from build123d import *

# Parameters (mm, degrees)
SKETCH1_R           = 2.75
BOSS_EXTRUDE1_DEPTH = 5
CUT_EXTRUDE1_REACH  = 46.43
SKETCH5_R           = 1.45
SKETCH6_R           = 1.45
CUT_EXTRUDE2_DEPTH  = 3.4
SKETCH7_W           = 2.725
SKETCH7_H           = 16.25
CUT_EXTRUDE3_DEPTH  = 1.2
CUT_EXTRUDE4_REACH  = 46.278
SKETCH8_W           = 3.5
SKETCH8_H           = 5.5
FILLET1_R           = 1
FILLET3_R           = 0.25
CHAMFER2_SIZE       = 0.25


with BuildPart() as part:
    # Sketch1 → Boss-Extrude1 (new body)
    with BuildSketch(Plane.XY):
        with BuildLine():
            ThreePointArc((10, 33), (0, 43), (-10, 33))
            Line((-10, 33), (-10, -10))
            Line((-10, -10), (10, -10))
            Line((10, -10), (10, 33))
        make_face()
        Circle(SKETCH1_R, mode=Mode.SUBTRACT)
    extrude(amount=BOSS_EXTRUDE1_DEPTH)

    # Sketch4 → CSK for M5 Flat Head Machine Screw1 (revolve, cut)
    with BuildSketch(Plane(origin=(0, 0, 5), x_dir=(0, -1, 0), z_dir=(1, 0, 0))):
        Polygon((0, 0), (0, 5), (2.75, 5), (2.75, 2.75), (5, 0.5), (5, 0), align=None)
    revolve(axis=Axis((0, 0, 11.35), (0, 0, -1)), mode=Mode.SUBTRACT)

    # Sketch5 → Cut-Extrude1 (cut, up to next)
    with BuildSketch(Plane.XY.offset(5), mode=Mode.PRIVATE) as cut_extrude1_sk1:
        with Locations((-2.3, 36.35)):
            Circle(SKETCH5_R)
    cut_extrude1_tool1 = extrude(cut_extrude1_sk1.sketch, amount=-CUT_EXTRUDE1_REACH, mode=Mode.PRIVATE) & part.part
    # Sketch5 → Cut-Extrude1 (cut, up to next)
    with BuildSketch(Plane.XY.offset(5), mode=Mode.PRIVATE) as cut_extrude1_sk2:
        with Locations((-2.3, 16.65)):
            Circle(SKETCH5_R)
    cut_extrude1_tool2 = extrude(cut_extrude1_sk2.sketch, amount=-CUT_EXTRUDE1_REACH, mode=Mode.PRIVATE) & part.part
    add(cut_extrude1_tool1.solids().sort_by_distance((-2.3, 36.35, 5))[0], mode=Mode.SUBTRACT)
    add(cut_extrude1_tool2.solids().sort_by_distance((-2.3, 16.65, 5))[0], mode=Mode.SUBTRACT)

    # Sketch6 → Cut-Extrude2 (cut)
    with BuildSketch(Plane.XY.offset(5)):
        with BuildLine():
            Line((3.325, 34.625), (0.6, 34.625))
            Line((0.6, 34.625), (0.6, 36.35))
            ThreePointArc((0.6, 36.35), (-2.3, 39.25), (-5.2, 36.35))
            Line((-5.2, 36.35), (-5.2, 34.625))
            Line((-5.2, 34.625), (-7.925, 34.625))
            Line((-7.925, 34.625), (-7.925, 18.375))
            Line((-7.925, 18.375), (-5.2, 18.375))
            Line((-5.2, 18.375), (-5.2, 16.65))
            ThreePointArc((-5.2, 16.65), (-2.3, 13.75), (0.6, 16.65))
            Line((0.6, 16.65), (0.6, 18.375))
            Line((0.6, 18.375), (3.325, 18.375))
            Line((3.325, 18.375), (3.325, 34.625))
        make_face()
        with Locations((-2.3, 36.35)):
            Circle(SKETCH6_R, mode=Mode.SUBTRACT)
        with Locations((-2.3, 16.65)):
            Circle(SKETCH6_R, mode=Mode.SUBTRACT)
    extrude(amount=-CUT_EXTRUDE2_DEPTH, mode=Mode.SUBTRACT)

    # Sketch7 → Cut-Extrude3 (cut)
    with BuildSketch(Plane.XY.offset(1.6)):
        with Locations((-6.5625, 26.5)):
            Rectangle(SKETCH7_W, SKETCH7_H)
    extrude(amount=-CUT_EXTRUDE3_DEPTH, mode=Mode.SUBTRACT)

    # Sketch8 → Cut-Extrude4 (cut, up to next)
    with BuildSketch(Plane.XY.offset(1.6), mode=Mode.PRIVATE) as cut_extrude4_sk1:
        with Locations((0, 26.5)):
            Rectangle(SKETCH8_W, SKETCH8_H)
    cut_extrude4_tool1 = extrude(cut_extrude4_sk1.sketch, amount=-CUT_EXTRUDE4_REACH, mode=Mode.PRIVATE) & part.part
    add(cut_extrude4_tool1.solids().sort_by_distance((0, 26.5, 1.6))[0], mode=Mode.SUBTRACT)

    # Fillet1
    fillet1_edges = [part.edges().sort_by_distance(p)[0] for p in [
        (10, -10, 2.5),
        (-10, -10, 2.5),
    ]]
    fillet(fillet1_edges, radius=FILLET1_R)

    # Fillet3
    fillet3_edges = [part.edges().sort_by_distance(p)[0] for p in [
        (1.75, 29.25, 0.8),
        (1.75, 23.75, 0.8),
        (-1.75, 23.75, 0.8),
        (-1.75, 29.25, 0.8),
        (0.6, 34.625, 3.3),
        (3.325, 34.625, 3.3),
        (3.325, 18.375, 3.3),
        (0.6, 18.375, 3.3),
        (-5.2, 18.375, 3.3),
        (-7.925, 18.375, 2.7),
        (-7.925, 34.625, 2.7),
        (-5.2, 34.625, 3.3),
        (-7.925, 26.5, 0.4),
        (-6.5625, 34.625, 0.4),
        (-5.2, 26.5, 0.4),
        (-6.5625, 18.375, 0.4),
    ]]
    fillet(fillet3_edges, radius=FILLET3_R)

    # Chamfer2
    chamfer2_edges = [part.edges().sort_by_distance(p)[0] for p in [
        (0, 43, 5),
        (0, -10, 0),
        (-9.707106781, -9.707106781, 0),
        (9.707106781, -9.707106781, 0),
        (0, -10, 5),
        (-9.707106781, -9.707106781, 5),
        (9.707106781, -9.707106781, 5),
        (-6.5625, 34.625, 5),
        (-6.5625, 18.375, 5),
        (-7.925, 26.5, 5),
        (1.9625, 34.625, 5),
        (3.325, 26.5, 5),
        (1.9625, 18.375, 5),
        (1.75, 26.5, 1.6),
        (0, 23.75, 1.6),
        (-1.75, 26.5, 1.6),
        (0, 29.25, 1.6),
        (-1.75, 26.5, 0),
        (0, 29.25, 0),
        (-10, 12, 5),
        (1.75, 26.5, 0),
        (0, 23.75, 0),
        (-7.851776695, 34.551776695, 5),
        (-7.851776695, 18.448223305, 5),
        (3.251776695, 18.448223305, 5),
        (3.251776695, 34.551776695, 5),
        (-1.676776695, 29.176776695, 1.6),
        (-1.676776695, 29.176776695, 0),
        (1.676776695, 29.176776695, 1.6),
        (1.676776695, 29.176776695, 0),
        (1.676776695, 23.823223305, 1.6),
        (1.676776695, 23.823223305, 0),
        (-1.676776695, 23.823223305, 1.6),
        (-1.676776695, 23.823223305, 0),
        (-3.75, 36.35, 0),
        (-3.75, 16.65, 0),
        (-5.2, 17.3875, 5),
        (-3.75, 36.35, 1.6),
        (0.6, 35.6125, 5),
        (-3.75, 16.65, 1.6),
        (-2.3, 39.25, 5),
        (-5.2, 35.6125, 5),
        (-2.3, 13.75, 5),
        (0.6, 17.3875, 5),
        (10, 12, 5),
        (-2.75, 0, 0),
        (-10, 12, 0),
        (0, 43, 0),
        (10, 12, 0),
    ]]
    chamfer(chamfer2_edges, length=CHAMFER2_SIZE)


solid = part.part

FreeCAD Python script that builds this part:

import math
import FreeCAD as App
import Part
import Sketcher
from FreeCAD import Vector
Q = App.Units.Quantity


def edges_at(feature, points):
    """Names of the edges that pass closest to the given points."""
    edges = feature.Shape.Edges
    near = lambda p: min(range(len(edges)), key=lambda i: edges[i].distToShape(Part.Vertex(*p))[0])
    return sorted({f"Edge{near(p) + 1}" for p in points})


def add_polygon(sketch, points):
    """Adds a closed chain of lines whose ends are joined by coincident constraints."""
    first, n = sketch.GeometryCount, len(points)
    for a, b in zip(points, points[1:] + points[:1]):
        sketch.addGeometry(Part.LineSegment(App.Vector(*a, 0), App.Vector(*b, 0)), False)
    for i in range(n):
        sketch.addConstraint(Sketcher.Constraint("Coincident", first + i, 2, first + (i + 1) % n, 1))

doc = App.newDocument("Part")
body = doc.addObject("PartDesign::Body", "Body")

sketch1 = doc.addObject("Sketcher::SketchObject", "Sketch")
body.addObject(sketch1)
sketch1.AttachmentSupport = (doc.XY_Plane, [""])
sketch1.MapMode = "FlatFace"
sketch1.addGeometry([
    Part.ArcOfCircle(Part.Circle(Vector(0, 33, 0), Vector(0, 0, 1), 10), math.radians(0), math.radians(180)),
    Part.LineSegment(Vector(-10, 33, 0), Vector(-10, -10, 0)),
    Part.LineSegment(Vector(-10, -10, 0), Vector(10, -10, 0)),
    Part.LineSegment(Vector(10, -10, 0), Vector(10, 33, 0)),
    Part.Circle(Vector(0, 0, 0), Vector(0, 0, 1), 2.75),
], False)
sketch1.addConstraint([
    Sketcher.Constraint("Tangent", 0, 2, 1, 1),
    Sketcher.Constraint("Coincident", 1, 2, 2, 1),
    Sketcher.Constraint("Coincident", 2, 2, 3, 1),
    Sketcher.Constraint("Tangent", 3, 2, 0, 1),
    Sketcher.Constraint("Vertical", 1),
    Sketcher.Constraint("Horizontal", 2),
    Sketcher.Constraint("Vertical", 3),
    Sketcher.Constraint("Coincident", 4, 3, -1, 1),
    Sketcher.Constraint("PointOnObject", 0, 3, -2),
    Sketcher.Constraint("Radius", 0, 10.0),
    Sketcher.Constraint("Diameter", 4, 5.5),
    Sketcher.Constraint("DistanceY", 1, 2, 1, 1, 43.0),
    Sketcher.Constraint("DistanceY", -1, 1, 0, 3, 33.0),
])
pad1 = doc.addObject("PartDesign::Pad", "Pad")
body.addObject(pad1)
pad1.Profile = sketch1
pad1.Length = 5

sketch2 = doc.addObject("Sketcher::SketchObject", "Sketch001")
body.addObject(sketch2)
sketch2.AttachmentSupport = (doc.YZ_Plane, [""])
sketch2.MapMode = "FlatFace"
add_polygon(sketch2, [(0, 0), (0, 5), (-5, 5), (-5, 4.5), (-2.75, 2.25), (-2.75, 0)])
sketch2.addConstraint([
    Sketcher.Constraint("Vertical", 0),
    Sketcher.Constraint("Horizontal", 1),
    Sketcher.Constraint("Vertical", 2),
    Sketcher.Constraint("Vertical", 4),
    Sketcher.Constraint("Horizontal", 5),
    Sketcher.Constraint("Coincident", 5, 2, -1, 1),
    Sketcher.Constraint("Equal", 1, 0),
    Sketcher.Constraint("DistanceX", 1, 2, 1, 1, 5.0),
    Sketcher.Constraint("Angle", 3, Q("-45 deg")),
    Sketcher.Constraint("DistanceY", 2, 2, 2, 1, 0.5),
    Sketcher.Constraint("DistanceX", 5, 1, 5, 2, 2.75),
])
groove = doc.addObject("PartDesign::Groove", "Groove")
body.addObject(groove)
groove.Profile = sketch2
groove.ReferenceAxis = (sketch2, ["V_Axis"])
groove.Angle = 360

sketch3 = doc.addObject("Sketcher::SketchObject", "Sketch002")
body.addObject(sketch3)
sketch3.AttachmentSupport = (doc.XY_Plane, [""])
sketch3.MapMode = "FlatFace"
sketch3.AttachmentOffset = App.Placement(Vector(0, 0, 5), App.Rotation())
sketch3.addGeometry(Part.Circle(Vector(-2.3, 36.35, 0), Vector(0, 0, 1), 1.45), False)
sketch3.addConstraint([
    Sketcher.Constraint("Diameter", 0, 2.9),
    Sketcher.Constraint("DistanceX", 0, 3, -1, 1, 2.3),
    Sketcher.Constraint("DistanceY", -1, 1, 0, 3, 36.35),
])
pocket1 = doc.addObject("PartDesign::Pocket", "Pocket")
body.addObject(pocket1)
pocket1.Profile = sketch3
pocket1.Type = "UpToFirst"

sketch4 = doc.addObject("Sketcher::SketchObject", "Sketch003")
body.addObject(sketch4)
sketch4.AttachmentSupport = (doc.XY_Plane, [""])
sketch4.MapMode = "FlatFace"
sketch4.AttachmentOffset = App.Placement(Vector(0, 0, 5), App.Rotation())
sketch4.addGeometry(Part.Circle(Vector(-2.3, 16.65, 0), Vector(0, 0, 1), 1.45), False)
sketch4.addConstraint([
    Sketcher.Constraint("Diameter", 0, 2.9),
    Sketcher.Constraint("DistanceX", 0, 3, -1, 1, 2.3),
    Sketcher.Constraint("DistanceY", -1, 1, 0, 3, 16.65),
])
pocket2 = doc.addObject("PartDesign::Pocket", "Pocket001")
body.addObject(pocket2)
pocket2.Profile = sketch4
pocket2.Type = "UpToFirst"

sketch5 = doc.addObject("Sketcher::SketchObject", "Sketch004")
body.addObject(sketch5)
sketch5.AttachmentSupport = (doc.XY_Plane, [""])
sketch5.MapMode = "FlatFace"
sketch5.AttachmentOffset = App.Placement(Vector(0, 0, 5), App.Rotation())
sketch5.addGeometry([
    Part.LineSegment(Vector(3.325, 34.625, 0), Vector(0.6, 34.625, 0)),
    Part.LineSegment(Vector(0.6, 34.625, 0), Vector(0.6, 36.35, 0)),
    Part.ArcOfCircle(Part.Circle(Vector(-2.3, 36.35, 0), Vector(0, 0, 1), 2.9), math.radians(0), math.radians(180)),
    Part.LineSegment(Vector(-5.2, 36.35, 0), Vector(-5.2, 34.625, 0)),
    Part.LineSegment(Vector(-5.2, 34.625, 0), Vector(-7.925, 34.625, 0)),
    Part.LineSegment(Vector(-7.925, 34.625, 0), Vector(-7.925, 18.375, 0)),
    Part.LineSegment(Vector(-7.925, 18.375, 0), Vector(-5.2, 18.375, 0)),
    Part.LineSegment(Vector(-5.2, 18.375, 0), Vector(-5.2, 16.65, 0)),
    Part.ArcOfCircle(Part.Circle(Vector(-2.3, 16.65, 0), Vector(0, 0, 1), 2.9), math.radians(180), math.radians(360)),
    Part.LineSegment(Vector(0.6, 16.65, 0), Vector(0.6, 18.375, 0)),
    Part.LineSegment(Vector(0.6, 18.375, 0), Vector(3.325, 18.375, 0)),
    Part.LineSegment(Vector(3.325, 18.375, 0), Vector(3.325, 34.625, 0)),
    Part.Circle(Vector(-2.3, 16.65, 0), Vector(0, 0, 1), 1.45),
    Part.Circle(Vector(-2.3, 36.35, 0), Vector(0, 0, 1), 1.45),
], False)
sketch5.addConstraint([
    Sketcher.Constraint("Coincident", 0, 2, 1, 1),
    Sketcher.Constraint("Tangent", 1, 2, 2, 1),
    Sketcher.Constraint("Tangent", 2, 2, 3, 1),
    Sketcher.Constraint("Coincident", 3, 2, 4, 1),
    Sketcher.Constraint("Coincident", 4, 2, 5, 1),
    Sketcher.Constraint("Coincident", 5, 2, 6, 1),
    Sketcher.Constraint("Coincident", 6, 2, 7, 1),
    Sketcher.Constraint("Tangent", 7, 2, 8, 1),
    Sketcher.Constraint("Tangent", 8, 2, 9, 1),
    Sketcher.Constraint("Coincident", 9, 2, 10, 1),
    Sketcher.Constraint("Coincident", 10, 2, 11, 1),
    Sketcher.Constraint("Coincident", 11, 2, 0, 1),
    Sketcher.Constraint("Horizontal", 0),
    Sketcher.Constraint("Vertical", 1),
    Sketcher.Constraint("Vertical", 3),
    Sketcher.Constraint("Horizontal", 4),
    Sketcher.Constraint("Vertical", 5),
    Sketcher.Constraint("Horizontal", 6),
    Sketcher.Constraint("Vertical", 7),
    Sketcher.Constraint("Vertical", 9),
    Sketcher.Constraint("Horizontal", 10),
    Sketcher.Constraint("Vertical", 11),
    Sketcher.Constraint("Coincident", 12, 3, 8, 3),
    Sketcher.Constraint("Coincident", 13, 3, 2, 3),
    Sketcher.Constraint("Equal", 2, 8),
    Sketcher.Constraint("Equal", 12, 13),
    Sketcher.Constraint("Horizontal", 0, 2, 3, 2),
    Sketcher.Constraint("Horizontal", 6, 2, 9, 2),
    Sketcher.Constraint("Vertical", 2, 3, 8, 3),
    Sketcher.Constraint("Equal", 0, 4),
    Sketcher.Constraint("Equal", 3, 7),
    Sketcher.Constraint("Diameter", 12, 2.9),
    Sketcher.Constraint("Radius", 2, 2.9),
    Sketcher.Constraint("DistanceY", 5, 2, 5, 1, 16.25),
    Sketcher.Constraint("DistanceX", 2, 3, -1, 1, 2.3),
    Sketcher.Constraint("DistanceY", 8, 3, 2, 3, 19.7),
    Sketcher.Constraint("DistanceX", 0, 2, 0, 1, 2.725),
    Sketcher.Constraint("DistanceY", -1, 1, 2, 3, 36.35),
])
pocket3 = doc.addObject("PartDesign::Pocket", "Pocket002")
body.addObject(pocket3)
pocket3.Profile = sketch5
pocket3.Length = 3.4

sketch6 = doc.addObject("Sketcher::SketchObject", "Sketch005")
body.addObject(sketch6)
sketch6.AttachmentSupport = (doc.XY_Plane, [""])
sketch6.MapMode = "FlatFace"
sketch6.AttachmentOffset = App.Placement(Vector(0, 0, 1.6), App.Rotation())
add_polygon(sketch6, [(-7.925, 34.625), (-7.925, 18.375), (-5.2, 18.375), (-5.2, 34.625)])
sketch6.addConstraint([
    Sketcher.Constraint("Vertical", 0),
    Sketcher.Constraint("Horizontal", 1),
    Sketcher.Constraint("Vertical", 2),
    Sketcher.Constraint("Horizontal", 3),
    Sketcher.Constraint("DistanceY", 0, 2, 0, 1, 16.25),
    Sketcher.Constraint("DistanceX", 1, 2, -1, 1, 5.2),
    Sketcher.Constraint("DistanceX", 1, 1, 1, 2, 2.725),
    Sketcher.Constraint("DistanceY", -1, 1, 0, 2, 18.375),
])
pocket4 = doc.addObject("PartDesign::Pocket", "Pocket003")
body.addObject(pocket4)
pocket4.Profile = sketch6
pocket4.Length = 1.2

sketch7 = doc.addObject("Sketcher::SketchObject", "Sketch006")
body.addObject(sketch7)
sketch7.AttachmentSupport = (doc.XY_Plane, [""])
sketch7.MapMode = "FlatFace"
sketch7.AttachmentOffset = App.Placement(Vector(0, 0, 1.6), App.Rotation())
add_polygon(sketch7, [(-1.75, 29.25), (-1.75, 23.75), (1.75, 23.75), (1.75, 29.25)])
sketch7.addConstraint([
    Sketcher.Constraint("Vertical", 0),
    Sketcher.Constraint("Horizontal", 1),
    Sketcher.Constraint("Vertical", 2),
    Sketcher.Constraint("Horizontal", 3),
    Sketcher.Constraint("DistanceX", 1, 1, 1, 2, 3.5),
    Sketcher.Constraint("DistanceY", 0, 2, 0, 1, 5.5),
    Sketcher.Constraint("DistanceX", 0, 2, -1, 1, 1.75),
    Sketcher.Constraint("DistanceY", -1, 1, 0, 2, 23.75),
])
pocket5 = doc.addObject("PartDesign::Pocket", "Pocket004")
body.addObject(pocket5)
pocket5.Profile = sketch7
pocket5.Type = "UpToFirst"
doc.recompute()

fillet = doc.addObject("PartDesign::Fillet", "Fillet")
body.addObject(fillet)
fillet.Base = (pocket5, edges_at(pocket5, [(10, -10, 2.5), (-10, -10, 2.5)]))
fillet.Radius = 1
doc.recompute()

fillet2 = doc.addObject("PartDesign::Fillet", "Fillet001")
body.addObject(fillet2)
fillet2.Base = (fillet, edges_at(fillet, [
    (1.75, 29.25, 0.8),
    (1.75, 23.75, 0.8),
    (-1.75, 23.75, 0.8),
    (-1.75, 29.25, 0.8),
    (0.6, 34.625, 3.3),
    (3.325, 34.625, 3.3),
    (3.325, 18.375, 3.3),
    (0.6, 18.375, 3.3),
    (-5.2, 18.375, 3.3),
    (-7.925, 18.375, 2.7),
    (-7.925, 34.625, 2.7),
    (-5.2, 34.625, 3.3),
    (-7.925, 26.5, 0.4),
    (-6.562, 34.625, 0.4),
    (-5.2, 26.5, 0.4),
    (-6.562, 18.375, 0.4),
]))
fillet2.Radius = 0.25
doc.recompute()

chamfer = doc.addObject("PartDesign::Chamfer", "Chamfer")
body.addObject(chamfer)
chamfer.Base = (fillet2, edges_at(fillet2, [
    (0, 43, 5),
    (0, -10, 0),
    (-9.707, -9.707, 0),
    (9.707, -9.707, 0),
    (0, -10, 5),
    (-9.707, -9.707, 5),
    (9.707, -9.707, 5),
    (-6.562, 34.625, 5),
    (-6.562, 18.375, 5),
    (-7.925, 26.5, 5),
    (1.962, 34.625, 5),
    (3.325, 26.5, 5),
    (1.962, 18.375, 5),
    (1.75, 26.5, 1.6),
    (0, 23.75, 1.6),
    (-1.75, 26.5, 1.6),
    (0, 29.25, 1.6),
    (-1.75, 26.5, 0),
    (0, 29.25, 0),
    (-10, 12, 5),
    (1.75, 26.5, 0),
    (0, 23.75, 0),
    (-7.852, 34.552, 5),
    (-7.852, 18.448, 5),
    (3.252, 18.448, 5),
    (3.252, 34.552, 5),
    (-1.677, 29.177, 1.6),
    (-1.677, 29.177, 0),
    (1.677, 29.177, 1.6),
    (1.677, 29.177, 0),
    (1.677, 23.823, 1.6),
    (1.677, 23.823, 0),
    (-1.677, 23.823, 1.6),
    (-1.677, 23.823, 0),
    (-3.75, 36.35, 0),
    (-3.75, 16.65, 0),
    (-5.2, 17.387, 5),
    (-3.75, 36.35, 1.6),
    (0.6, 35.612, 5),
    (-3.75, 16.65, 1.6),
    (-2.3, 39.25, 5),
    (-5.2, 35.612, 5),
    (-2.3, 13.75, 5),
    (0.6, 17.387, 5),
    (10, 12, 5),
    (-2.75, 0, 0),
    (-10, 12, 0),
    (0, 43, 0),
    (10, 12, 0),
]))
chamfer.Size = 0.25

doc.recompute()
